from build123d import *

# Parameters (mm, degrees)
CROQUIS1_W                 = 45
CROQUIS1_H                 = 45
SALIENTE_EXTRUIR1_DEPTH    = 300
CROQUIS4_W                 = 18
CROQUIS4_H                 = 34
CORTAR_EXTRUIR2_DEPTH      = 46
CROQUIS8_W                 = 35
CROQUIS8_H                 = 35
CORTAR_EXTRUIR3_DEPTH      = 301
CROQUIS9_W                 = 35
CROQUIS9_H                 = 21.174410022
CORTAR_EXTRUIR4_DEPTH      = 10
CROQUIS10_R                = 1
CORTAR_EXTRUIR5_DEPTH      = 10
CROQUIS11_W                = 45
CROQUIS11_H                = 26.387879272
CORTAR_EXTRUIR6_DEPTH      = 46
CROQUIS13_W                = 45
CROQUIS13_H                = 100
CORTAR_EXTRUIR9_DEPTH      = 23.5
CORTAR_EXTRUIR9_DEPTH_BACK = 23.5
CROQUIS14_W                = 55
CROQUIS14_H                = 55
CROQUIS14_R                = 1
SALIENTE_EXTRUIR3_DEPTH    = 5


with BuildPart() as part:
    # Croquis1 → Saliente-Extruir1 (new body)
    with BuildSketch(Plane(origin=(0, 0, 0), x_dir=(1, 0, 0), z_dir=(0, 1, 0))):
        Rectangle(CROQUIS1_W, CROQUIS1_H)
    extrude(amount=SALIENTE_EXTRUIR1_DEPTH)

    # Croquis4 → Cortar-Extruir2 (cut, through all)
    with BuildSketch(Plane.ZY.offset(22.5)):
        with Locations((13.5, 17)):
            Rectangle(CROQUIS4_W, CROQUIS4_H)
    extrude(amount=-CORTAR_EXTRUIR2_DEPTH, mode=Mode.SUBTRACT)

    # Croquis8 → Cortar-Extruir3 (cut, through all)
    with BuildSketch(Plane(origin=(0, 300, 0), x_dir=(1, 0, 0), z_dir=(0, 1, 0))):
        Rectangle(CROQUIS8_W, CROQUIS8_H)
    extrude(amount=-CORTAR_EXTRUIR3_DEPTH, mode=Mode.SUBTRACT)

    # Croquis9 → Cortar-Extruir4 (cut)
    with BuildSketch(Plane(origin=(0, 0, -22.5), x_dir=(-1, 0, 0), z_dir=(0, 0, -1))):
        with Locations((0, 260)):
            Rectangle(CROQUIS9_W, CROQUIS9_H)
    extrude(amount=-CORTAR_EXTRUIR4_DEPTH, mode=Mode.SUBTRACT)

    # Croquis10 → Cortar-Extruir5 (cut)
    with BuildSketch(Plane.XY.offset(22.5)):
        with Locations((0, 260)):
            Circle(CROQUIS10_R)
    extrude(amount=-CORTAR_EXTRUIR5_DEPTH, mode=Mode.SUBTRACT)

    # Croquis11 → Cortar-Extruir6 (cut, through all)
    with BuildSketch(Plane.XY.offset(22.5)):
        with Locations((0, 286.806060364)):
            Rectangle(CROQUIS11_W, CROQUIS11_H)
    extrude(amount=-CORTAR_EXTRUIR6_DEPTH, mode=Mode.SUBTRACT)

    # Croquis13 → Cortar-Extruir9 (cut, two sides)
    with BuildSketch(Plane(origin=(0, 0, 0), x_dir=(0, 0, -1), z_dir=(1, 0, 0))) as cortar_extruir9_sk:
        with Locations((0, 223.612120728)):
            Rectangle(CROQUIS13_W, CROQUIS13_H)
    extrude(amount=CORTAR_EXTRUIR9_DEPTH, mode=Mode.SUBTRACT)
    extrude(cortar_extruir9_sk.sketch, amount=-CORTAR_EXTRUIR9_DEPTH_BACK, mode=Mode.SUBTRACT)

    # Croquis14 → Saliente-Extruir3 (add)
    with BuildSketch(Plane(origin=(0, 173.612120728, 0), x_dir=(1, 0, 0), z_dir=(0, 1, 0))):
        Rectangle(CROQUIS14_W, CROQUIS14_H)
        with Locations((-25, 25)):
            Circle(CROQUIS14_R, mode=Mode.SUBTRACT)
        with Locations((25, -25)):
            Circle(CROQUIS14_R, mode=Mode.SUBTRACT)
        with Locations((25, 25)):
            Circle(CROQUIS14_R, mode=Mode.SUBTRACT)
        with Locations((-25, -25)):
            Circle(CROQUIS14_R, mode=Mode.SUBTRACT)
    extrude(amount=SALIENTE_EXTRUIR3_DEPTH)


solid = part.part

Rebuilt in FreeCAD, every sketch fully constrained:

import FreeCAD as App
import Part
import Sketcher

V = App.Vector


def add_polygon(sketch, points):
    """Adds a closed chain of lines whose ends are joined by coincident constraints."""
    first, n = sketch.GeometryCount, len(points)
    for a, b in zip(points, points[1:] + points[:1]):
        sketch.addGeometry(Part.LineSegment(App.Vector(*a, 0), App.Vector(*b, 0)), False)
    for i in range(n):
        sketch.addConstraint(Sketcher.Constraint("Coincident", first + i, 2, first + (i + 1) % n, 1))

doc = App.newDocument("Part")
body = doc.addObject("PartDesign::Body", "Body")

sketch1 = doc.addObject("Sketcher::SketchObject", "Sketch")
body.addObject(sketch1)
sketch1.AttachmentSupport = (doc.XZ_Plane, [""])
sketch1.MapMode = "FlatFace"
add_polygon(sketch1, [(-22.5, -22.5), (-22.5, 22.5), (22.5, 22.5), (22.5, -22.5)])
sketch1.addConstraint([
    Sketcher.Constraint("Vertical", 0),
    Sketcher.Constraint("Horizontal", 1),
    Sketcher.Constraint("Vertical", 2),
    Sketcher.Constraint("Horizontal", 3),
    Sketcher.Constraint("Symmetric", 0, 2, 2, 2, -1, 1),
    Sketcher.Constraint("Equal", 3, 0),
    Sketcher.Constraint("DistanceX", 1, 1, 1, 2, 45.0),
])
pad1 = doc.addObject("PartDesign::Pad", "Pad")
body.addObject(pad1)
pad1.Profile = sketch1
pad1.Length = 300
pad1.Reversed = True

sketch2 = doc.addObject("Sketcher::SketchObject", "Sketch001")
body.addObject(sketch2)
sketch2.AttachmentSupport = (doc.YZ_Plane, [""])
sketch2.MapMode = "FlatFace"
sketch2.AttachmentOffset = App.Placement(V(0, 0, -22.5), App.Rotation())
add_polygon(sketch2, [(34, 4.5), (0, 4.5), (0, 22.5), (34, 22.5)])
sketch2.addConstraint([
    Sketcher.Constraint("Horizontal", 0),
    Sketcher.Constraint("Vertical", 1),
    Sketcher.Constraint("Horizontal", 2),
    Sketcher.Constraint("Vertical", 3),
    Sketcher.Constraint("PointOnObject", 0, 2, -2),
    Sketcher.Constraint("DistanceX", 0, 2, 0, 1, 34.0),
    Sketcher.Constraint("DistanceY", 1, 1, 1, 2, 18.0),
    Sketcher.Constraint("DistanceY", -1, 1, 0, 2, 4.5),
])
pocket1 = doc.addObject("PartDesign::Pocket", "Pocket")
body.addObject(pocket1)
pocket1.Profile = sketch2
pocket1.Type = "ThroughAll"
pocket1.Reversed = True

sketch3 = doc.addObject("Sketcher::SketchObject", "Sketch002")
body.addObject(sketch3)
sketch3.AttachmentSupport = (doc.XZ_Plane, [""])
sketch3.MapMode = "FlatFace"
sketch3.AttachmentOffset = App.Placement(V(0, 0, -300), App.Rotation())
add_polygon(sketch3, [(-17.5, -17.5), (-17.5, 17.5), (17.5, 17.5), (17.5, -17.5)])
sketch3.addConstraint([
    Sketcher.Constraint("Vertical", 0),
    Sketcher.Constraint("Horizontal", 1),
    Sketcher.Constraint("Vertical", 2),
    Sketcher.Constraint("Horizontal", 3),
    Sketcher.Constraint("Symmetric", 0, 2, 2, 2, -1, 1),
    Sketcher.Constraint("Equal", 3, 0),
    Sketcher.Constraint("DistanceX", 1, 1, 1, 2, 35.0),
])
pocket2 = doc.addObject("PartDesign::Pocket", "Pocket001")
body.addObject(pocket2)
pocket2.Profile = sketch3
pocket2.Type = "ThroughAll"
pocket2.Reversed = True

sketch4 = doc.addObject("Sketcher::SketchObject", "Sketch003")
body.addObject(sketch4)
sketch4.AttachmentSupport = (doc.XY_Plane, [""])
sketch4.MapMode = "FlatFace"
sketch4.AttachmentOffset = App.Placement(V(0, 0, -22.5), App.Rotation())
add_polygon(sketch4, [(17.5, 270.587205), (17.5, 249.412795), (-17.5, 249.412795), (-17.5, 270.587205)])
sketch4.addConstraint([
    Sketcher.Constraint("Vertical", 0),
    Sketcher.Constraint("Horizontal", 1),
    Sketcher.Constraint("Vertical", 2),
    Sketcher.Constraint("Horizontal", 3),
    Sketcher.Constraint("DistanceX", 1, 2, 1, 1, 35.0),
    Sketcher.Constraint("DistanceX", -1, 1, 0, 2, 17.5),
    Sketcher.Constraint("DistanceY", 0, 2, 0, 1, 21.17441),
    Sketcher.Constraint("DistanceY", -1, 1, 0, 2, 249.412795),
])
pocket3 = doc.addObject("PartDesign::Pocket", "Pocket002")
body.addObject(pocket3)
pocket3.Profile = sketch4
pocket3.Length = 10
pocket3.Reversed = True

sketch5 = doc.addObject("Sketcher::SketchObject", "Sketch004")
body.addObject(sketch5)
sketch5.AttachmentSupport = (doc.XY_Plane, [""])
sketch5.MapMode = "FlatFace"
sketch5.AttachmentOffset = App.Placement(V(0, 0, 22.5), App.Rotation())
sketch5.addGeometry(Part.Circle(V(0, 260, 0), V(0, 0, 1), 1), False)
sketch5.addConstraint([
    Sketcher.Constraint("PointOnObject", 0, 3, -2),
    Sketcher.Constraint("Diameter", 0, 2.0),
    Sketcher.Constraint("DistanceY", -1, 1, 0, 3, 260.0),
])
pocket4 = doc.addObject("PartDesign::Pocket", "Pocket003")
body.addObject(pocket4)
pocket4.Profile = sketch5
pocket4.Length = 10

sketch6 = doc.addObject("Sketcher::SketchObject", "Sketch005")
body.addObject(sketch6)
sketch6.AttachmentSupport = (doc.XY_Plane, [""])
sketch6.MapMode = "FlatFace"
sketch6.AttachmentOffset = App.Placement(V(0, 0, 22.5), App.Rotation())
add_polygon(sketch6, [(-22.5, 300), (-22.5, 273.612121), (22.5, 273.612121), (22.5, 300)])
sketch6.addConstraint([
    Sketcher.Constraint("Vertical", 0),
    Sketcher.Constraint("Horizontal", 1),
    Sketcher.Constraint("Vertical", 2),
    Sketcher.Constraint("Horizontal", 3),
    Sketcher.Constraint("DistanceX", 1, 1, 1, 2, 45.0),
    Sketcher.Constraint("DistanceY", -1, 1, 2, 2, 300.0),
    Sketcher.Constraint("DistanceX", 0, 2, -1, 1, 22.5),
    Sketcher.Constraint("DistanceY", 0, 2, 0, 1, 26.387879),
])
pocket5 = doc.addObject("PartDesign::Pocket", "Pocket004")
body.addObject(pocket5)
pocket5.Profile = sketch6
pocket5.Type = "ThroughAll"

sketch7 = doc.addObject("Sketcher::SketchObject", "Sketch006")
body.addObject(sketch7)
sketch7.AttachmentSupport = (doc.YZ_Plane, [""])
sketch7.MapMode = "FlatFace"
add_polygon(sketch7, [(273.612121, 22.5), (173.612121, 22.5), (173.612121, -22.5), (273.612121, -22.5)])
sketch7.addConstraint([
    Sketcher.Constraint("Horizontal", 0),
    Sketcher.Constraint("Vertical", 1),
    Sketcher.Constraint("Horizontal", 2),
    Sketcher.Constraint("Vertical", 3),
    Sketcher.Constraint("DistanceX", 0, 2, 0, 1, 100.0),
    Sketcher.Constraint("DistanceY", 1, 2, 1, 1, 45.0),
    Sketcher.Constraint("DistanceY", -1, 1, 0, 2, 22.5),
    Sketcher.Constraint("DistanceX", -1, 1, 0, 2, 173.612121),
])
pocket6 = doc.addObject("PartDesign::Pocket", "Pocket005")
body.addObject(pocket6)
pocket6.Profile = sketch7
pocket6.Type = "ThroughAll"
pocket6.Midplane = True

sketch8 = doc.addObject("Sketcher::SketchObject", "Sketch007")
body.addObject(sketch8)
sketch8.AttachmentSupport = (doc.XZ_Plane, [""])
sketch8.MapMode = "FlatFace"
sketch8.AttachmentOffset = App.Placement(V(0, 0, -173.612121), App.Rotation())
add_polygon(sketch8, [(-27.5, -27.5), (-27.5, 27.5), (27.5, 27.5), (27.5, -27.5)])
sketch8.addGeometry(Part.Circle(V(-25, 25, 0), V(0, 0, 1), 1), False)
sketch8.addGeometry(Part.Circle(V(25, 25, 0), V(0, 0, 1), 1), False)
sketch8.addGeometry(Part.Circle(V(-25, -25, 0), V(0, 0, 1), 1), False)
sketch8.addGeometry(Part.Circle(V(25, -25, 0), V(0, 0, 1), 1), False)
sketch8.addConstraint([
    Sketcher.Constraint("Vertical", 0),
    Sketcher.Constraint("Horizontal", 1),
    Sketcher.Constraint("Vertical", 2),
    Sketcher.Constraint("Horizontal", 3),
    Sketcher.Constraint("Equal", 4, 5),
    Sketcher.Constraint("Equal", 5, 6),
    Sketcher.Constraint("Equal", 6, 7),
    Sketcher.Constraint("Symmetric", 5, 3, 6, 3, -1, 1),
    Sketcher.Constraint("Symmetric", 4, 3, 7, 3, -1, 1),
    Sketcher.Constraint("Symmetric", 0, 2, 2, 2, -1, 1),
    Sketcher.Constraint("Symmetric", 4, 3, 5, 3, -2),
    Sketcher.Constraint("Equal", 3, 0),
    Sketcher.Constraint("Diameter", 4, 2.0),
    Sketcher.Constraint("DistanceX", 1, 1, 1, 2, 55.0),
    Sketcher.Constraint("DistanceX", 4, 3, -1, 1, 25.0),
    Sketcher.Constraint("DistanceY", -1, 1, 4, 3, 25.0),
])
pad2 = doc.addObject("PartDesign::Pad", "Pad001")
body.addObject(pad2)
pad2.Profile = sketch8
pad2.Length = 5
pad2.Reversed = True

doc.recompute()
